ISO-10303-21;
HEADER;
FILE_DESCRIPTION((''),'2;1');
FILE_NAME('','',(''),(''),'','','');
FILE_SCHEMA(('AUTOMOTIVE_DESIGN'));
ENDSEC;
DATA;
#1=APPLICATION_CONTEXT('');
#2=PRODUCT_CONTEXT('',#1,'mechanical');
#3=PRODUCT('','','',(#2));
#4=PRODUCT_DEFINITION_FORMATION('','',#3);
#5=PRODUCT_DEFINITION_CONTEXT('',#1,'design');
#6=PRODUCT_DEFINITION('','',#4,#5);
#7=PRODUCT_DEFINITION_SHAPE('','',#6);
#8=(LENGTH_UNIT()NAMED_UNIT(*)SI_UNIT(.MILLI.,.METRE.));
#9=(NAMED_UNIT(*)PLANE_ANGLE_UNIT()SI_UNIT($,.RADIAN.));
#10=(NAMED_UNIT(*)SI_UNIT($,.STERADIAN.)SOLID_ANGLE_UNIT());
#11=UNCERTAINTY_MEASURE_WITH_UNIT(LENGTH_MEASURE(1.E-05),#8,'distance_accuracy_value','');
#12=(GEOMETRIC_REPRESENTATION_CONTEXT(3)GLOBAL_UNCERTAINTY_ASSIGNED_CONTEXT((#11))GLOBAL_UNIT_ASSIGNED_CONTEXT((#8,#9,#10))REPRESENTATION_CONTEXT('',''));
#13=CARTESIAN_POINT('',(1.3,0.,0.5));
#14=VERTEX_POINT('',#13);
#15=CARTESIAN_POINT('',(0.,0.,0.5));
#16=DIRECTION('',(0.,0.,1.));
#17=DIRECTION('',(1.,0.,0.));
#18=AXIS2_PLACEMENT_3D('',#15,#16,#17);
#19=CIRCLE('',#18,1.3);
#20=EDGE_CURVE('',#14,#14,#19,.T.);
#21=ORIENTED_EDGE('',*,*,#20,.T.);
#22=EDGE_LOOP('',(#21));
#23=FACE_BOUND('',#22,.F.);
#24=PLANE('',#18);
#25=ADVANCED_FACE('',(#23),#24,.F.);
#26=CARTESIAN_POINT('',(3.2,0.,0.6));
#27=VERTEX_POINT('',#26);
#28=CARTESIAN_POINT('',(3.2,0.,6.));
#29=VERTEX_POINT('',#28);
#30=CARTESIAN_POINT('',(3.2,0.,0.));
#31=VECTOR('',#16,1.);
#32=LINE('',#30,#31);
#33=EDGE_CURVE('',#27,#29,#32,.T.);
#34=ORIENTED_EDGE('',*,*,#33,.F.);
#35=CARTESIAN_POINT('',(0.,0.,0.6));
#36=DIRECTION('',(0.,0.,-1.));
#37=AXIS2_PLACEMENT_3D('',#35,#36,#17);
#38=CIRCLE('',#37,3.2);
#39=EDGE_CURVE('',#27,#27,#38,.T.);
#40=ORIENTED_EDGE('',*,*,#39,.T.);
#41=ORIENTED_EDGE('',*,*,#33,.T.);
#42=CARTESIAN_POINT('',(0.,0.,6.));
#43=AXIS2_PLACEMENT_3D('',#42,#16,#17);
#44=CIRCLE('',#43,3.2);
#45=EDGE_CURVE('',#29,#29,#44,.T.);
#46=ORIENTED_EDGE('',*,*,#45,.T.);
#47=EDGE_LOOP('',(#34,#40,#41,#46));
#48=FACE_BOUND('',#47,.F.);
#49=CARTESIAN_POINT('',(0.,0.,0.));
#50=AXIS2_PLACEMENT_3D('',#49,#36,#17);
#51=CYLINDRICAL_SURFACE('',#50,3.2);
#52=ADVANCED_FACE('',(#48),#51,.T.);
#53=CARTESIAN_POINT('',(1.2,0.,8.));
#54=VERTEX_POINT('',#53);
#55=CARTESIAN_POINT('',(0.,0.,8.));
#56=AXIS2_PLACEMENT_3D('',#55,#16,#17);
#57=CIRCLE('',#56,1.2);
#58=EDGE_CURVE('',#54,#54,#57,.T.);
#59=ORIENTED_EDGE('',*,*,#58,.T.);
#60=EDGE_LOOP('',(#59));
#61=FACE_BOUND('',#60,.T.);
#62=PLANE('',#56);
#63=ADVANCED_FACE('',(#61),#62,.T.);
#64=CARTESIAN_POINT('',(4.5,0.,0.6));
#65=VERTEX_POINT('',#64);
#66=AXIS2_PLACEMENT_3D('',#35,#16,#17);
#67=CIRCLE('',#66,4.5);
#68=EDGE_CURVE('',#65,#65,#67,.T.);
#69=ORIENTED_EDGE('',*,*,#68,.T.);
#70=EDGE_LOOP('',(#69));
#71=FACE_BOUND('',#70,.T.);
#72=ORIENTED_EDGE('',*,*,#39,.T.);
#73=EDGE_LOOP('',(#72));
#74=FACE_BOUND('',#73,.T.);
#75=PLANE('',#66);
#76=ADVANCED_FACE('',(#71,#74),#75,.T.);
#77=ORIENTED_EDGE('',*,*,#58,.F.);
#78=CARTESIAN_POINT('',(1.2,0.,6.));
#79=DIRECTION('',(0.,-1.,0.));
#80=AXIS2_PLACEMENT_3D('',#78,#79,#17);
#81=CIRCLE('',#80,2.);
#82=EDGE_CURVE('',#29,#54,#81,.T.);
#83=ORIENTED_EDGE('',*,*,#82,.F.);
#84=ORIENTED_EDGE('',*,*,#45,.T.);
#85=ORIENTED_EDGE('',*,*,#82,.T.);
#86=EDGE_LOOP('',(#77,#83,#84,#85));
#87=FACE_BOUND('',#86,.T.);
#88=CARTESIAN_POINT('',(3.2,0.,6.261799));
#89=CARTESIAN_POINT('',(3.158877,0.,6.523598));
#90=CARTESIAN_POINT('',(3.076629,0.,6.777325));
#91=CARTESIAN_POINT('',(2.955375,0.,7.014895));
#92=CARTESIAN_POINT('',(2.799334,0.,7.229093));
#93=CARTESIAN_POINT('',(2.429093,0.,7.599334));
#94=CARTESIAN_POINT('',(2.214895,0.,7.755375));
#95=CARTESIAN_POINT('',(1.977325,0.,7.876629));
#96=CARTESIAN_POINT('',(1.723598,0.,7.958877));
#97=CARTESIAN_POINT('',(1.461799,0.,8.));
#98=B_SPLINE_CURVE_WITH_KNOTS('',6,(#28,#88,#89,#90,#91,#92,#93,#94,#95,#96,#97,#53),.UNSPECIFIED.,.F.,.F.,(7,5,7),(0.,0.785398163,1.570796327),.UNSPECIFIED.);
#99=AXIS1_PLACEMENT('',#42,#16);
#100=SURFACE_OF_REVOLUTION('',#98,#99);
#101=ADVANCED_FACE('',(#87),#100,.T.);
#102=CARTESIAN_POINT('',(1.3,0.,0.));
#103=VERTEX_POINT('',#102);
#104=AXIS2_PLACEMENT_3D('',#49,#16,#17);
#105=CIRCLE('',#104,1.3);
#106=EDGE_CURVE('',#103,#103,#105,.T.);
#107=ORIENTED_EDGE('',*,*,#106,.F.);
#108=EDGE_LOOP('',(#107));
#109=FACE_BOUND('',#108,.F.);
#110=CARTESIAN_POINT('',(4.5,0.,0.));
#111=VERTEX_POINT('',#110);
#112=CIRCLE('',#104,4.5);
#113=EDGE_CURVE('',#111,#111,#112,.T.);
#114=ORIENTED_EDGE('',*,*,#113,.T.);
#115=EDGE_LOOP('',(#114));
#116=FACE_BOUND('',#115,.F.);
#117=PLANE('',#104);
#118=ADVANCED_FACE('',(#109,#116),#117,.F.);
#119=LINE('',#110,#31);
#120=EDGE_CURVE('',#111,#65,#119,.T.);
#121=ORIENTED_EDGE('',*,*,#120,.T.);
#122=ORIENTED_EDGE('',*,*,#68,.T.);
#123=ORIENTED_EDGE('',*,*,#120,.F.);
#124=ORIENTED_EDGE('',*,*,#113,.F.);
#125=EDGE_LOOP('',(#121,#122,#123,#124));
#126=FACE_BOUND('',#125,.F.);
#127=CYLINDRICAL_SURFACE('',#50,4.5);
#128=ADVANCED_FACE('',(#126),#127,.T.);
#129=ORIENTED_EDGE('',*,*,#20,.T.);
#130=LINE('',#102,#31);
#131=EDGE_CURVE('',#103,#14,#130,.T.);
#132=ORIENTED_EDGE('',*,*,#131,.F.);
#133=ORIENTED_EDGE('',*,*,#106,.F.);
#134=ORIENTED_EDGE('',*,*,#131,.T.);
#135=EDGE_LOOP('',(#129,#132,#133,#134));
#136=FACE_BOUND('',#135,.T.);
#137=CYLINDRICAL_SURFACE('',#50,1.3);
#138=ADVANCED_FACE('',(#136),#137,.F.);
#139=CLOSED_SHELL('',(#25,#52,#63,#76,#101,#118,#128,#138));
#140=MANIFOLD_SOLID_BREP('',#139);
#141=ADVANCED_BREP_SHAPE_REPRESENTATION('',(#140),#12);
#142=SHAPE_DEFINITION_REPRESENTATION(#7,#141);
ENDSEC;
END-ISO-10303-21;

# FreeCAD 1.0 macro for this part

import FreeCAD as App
import Part
import Sketcher

V = App.Vector


def edges_at(feature, points):
    """Names of the edges that pass closest to the given points."""
    edges = feature.Shape.Edges
    near = lambda p: min(range(len(edges)), key=lambda i: edges[i].distToShape(Part.Vertex(*p))[0])
    return sorted({f"Edge{near(p) + 1}" for p in points})

doc = App.newDocument("Part")
body = doc.addObject("PartDesign::Body", "Body")

# Sketch on XY plane
sketch1 = doc.addObject("Sketcher::SketchObject", "Sketch")
body.addObject(sketch1)
sketch1.AttachmentSupport = (doc.XY_Plane, [""])
sketch1.MapMode = "FlatFace"
sketch1.addGeometry(Part.Circle(V(0, 0, 0), V(0, 0, 1), 4.5), False)
sketch1.addGeometry(Part.Circle(V(0, 0, 0), V(0, 0, 1), 1.3), False)
sketch1.addConstraint(Sketcher.Constraint("Coincident", 0, 3, -1, 1))
sketch1.addConstraint(Sketcher.Constraint("Coincident", 1, 3, -1, 1))
sketch1.addConstraint(Sketcher.Constraint("Diameter", 0, 9.0))
sketch1.addConstraint(Sketcher.Constraint("Diameter", 1, 2.6))
pad1 = doc.addObject("PartDesign::Pad", "Pad")
body.addObject(pad1)
pad1.Profile = sketch1
pad1.Length = 0.6

# Sketch on XY plane
sketch2 = doc.addObject("Sketcher::SketchObject", "Sketch001")
body.addObject(sketch2)
sketch2.AttachmentSupport = (doc.XY_Plane, [""])
sketch2.MapMode = "FlatFace"
sketch2.addGeometry(Part.Circle(V(0, 0, 0), V(0, 0, 1), 3.2), False)
sketch2.addConstraint(Sketcher.Constraint("Coincident", 0, 3, -1, 1))
sketch2.addConstraint(Sketcher.Constraint("Diameter", 0, 6.4))
pad2 = doc.addObject("PartDesign::Pad", "Pad001")
body.addObject(pad2)
pad2.Profile = sketch2
pad2.Length = 8
doc.recompute()

fillet = doc.addObject("PartDesign::Fillet", "Fillet")
body.addObject(fillet)
fillet.Base = (pad2, edges_at(pad2, [(-3.2, 0, 8)]))
fillet.Radius = 2

# Sketch on XY plane
sketch3 = doc.addObject("Sketcher::SketchObject", "Sketch002")
body.addObject(sketch3)
sketch3.AttachmentSupport = (doc.XY_Plane, [""])
sketch3.MapMode = "FlatFace"
sketch3.addGeometry(Part.Circle(V(0, 0, 0), V(0, 0, 1), 1.3), False)
sketch3.addConstraint(Sketcher.Constraint("Coincident", 0, 3, -1, 1))
sketch3.addConstraint(Sketcher.Constraint("Diameter", 0, 2.6))
pocket1 = doc.addObject("PartDesign::Pocket", "Pocket")
body.addObject(pocket1)
pocket1.Profile = sketch3
pocket1.Length = 0.5
pocket1.Reversed = True

doc.recompute()
